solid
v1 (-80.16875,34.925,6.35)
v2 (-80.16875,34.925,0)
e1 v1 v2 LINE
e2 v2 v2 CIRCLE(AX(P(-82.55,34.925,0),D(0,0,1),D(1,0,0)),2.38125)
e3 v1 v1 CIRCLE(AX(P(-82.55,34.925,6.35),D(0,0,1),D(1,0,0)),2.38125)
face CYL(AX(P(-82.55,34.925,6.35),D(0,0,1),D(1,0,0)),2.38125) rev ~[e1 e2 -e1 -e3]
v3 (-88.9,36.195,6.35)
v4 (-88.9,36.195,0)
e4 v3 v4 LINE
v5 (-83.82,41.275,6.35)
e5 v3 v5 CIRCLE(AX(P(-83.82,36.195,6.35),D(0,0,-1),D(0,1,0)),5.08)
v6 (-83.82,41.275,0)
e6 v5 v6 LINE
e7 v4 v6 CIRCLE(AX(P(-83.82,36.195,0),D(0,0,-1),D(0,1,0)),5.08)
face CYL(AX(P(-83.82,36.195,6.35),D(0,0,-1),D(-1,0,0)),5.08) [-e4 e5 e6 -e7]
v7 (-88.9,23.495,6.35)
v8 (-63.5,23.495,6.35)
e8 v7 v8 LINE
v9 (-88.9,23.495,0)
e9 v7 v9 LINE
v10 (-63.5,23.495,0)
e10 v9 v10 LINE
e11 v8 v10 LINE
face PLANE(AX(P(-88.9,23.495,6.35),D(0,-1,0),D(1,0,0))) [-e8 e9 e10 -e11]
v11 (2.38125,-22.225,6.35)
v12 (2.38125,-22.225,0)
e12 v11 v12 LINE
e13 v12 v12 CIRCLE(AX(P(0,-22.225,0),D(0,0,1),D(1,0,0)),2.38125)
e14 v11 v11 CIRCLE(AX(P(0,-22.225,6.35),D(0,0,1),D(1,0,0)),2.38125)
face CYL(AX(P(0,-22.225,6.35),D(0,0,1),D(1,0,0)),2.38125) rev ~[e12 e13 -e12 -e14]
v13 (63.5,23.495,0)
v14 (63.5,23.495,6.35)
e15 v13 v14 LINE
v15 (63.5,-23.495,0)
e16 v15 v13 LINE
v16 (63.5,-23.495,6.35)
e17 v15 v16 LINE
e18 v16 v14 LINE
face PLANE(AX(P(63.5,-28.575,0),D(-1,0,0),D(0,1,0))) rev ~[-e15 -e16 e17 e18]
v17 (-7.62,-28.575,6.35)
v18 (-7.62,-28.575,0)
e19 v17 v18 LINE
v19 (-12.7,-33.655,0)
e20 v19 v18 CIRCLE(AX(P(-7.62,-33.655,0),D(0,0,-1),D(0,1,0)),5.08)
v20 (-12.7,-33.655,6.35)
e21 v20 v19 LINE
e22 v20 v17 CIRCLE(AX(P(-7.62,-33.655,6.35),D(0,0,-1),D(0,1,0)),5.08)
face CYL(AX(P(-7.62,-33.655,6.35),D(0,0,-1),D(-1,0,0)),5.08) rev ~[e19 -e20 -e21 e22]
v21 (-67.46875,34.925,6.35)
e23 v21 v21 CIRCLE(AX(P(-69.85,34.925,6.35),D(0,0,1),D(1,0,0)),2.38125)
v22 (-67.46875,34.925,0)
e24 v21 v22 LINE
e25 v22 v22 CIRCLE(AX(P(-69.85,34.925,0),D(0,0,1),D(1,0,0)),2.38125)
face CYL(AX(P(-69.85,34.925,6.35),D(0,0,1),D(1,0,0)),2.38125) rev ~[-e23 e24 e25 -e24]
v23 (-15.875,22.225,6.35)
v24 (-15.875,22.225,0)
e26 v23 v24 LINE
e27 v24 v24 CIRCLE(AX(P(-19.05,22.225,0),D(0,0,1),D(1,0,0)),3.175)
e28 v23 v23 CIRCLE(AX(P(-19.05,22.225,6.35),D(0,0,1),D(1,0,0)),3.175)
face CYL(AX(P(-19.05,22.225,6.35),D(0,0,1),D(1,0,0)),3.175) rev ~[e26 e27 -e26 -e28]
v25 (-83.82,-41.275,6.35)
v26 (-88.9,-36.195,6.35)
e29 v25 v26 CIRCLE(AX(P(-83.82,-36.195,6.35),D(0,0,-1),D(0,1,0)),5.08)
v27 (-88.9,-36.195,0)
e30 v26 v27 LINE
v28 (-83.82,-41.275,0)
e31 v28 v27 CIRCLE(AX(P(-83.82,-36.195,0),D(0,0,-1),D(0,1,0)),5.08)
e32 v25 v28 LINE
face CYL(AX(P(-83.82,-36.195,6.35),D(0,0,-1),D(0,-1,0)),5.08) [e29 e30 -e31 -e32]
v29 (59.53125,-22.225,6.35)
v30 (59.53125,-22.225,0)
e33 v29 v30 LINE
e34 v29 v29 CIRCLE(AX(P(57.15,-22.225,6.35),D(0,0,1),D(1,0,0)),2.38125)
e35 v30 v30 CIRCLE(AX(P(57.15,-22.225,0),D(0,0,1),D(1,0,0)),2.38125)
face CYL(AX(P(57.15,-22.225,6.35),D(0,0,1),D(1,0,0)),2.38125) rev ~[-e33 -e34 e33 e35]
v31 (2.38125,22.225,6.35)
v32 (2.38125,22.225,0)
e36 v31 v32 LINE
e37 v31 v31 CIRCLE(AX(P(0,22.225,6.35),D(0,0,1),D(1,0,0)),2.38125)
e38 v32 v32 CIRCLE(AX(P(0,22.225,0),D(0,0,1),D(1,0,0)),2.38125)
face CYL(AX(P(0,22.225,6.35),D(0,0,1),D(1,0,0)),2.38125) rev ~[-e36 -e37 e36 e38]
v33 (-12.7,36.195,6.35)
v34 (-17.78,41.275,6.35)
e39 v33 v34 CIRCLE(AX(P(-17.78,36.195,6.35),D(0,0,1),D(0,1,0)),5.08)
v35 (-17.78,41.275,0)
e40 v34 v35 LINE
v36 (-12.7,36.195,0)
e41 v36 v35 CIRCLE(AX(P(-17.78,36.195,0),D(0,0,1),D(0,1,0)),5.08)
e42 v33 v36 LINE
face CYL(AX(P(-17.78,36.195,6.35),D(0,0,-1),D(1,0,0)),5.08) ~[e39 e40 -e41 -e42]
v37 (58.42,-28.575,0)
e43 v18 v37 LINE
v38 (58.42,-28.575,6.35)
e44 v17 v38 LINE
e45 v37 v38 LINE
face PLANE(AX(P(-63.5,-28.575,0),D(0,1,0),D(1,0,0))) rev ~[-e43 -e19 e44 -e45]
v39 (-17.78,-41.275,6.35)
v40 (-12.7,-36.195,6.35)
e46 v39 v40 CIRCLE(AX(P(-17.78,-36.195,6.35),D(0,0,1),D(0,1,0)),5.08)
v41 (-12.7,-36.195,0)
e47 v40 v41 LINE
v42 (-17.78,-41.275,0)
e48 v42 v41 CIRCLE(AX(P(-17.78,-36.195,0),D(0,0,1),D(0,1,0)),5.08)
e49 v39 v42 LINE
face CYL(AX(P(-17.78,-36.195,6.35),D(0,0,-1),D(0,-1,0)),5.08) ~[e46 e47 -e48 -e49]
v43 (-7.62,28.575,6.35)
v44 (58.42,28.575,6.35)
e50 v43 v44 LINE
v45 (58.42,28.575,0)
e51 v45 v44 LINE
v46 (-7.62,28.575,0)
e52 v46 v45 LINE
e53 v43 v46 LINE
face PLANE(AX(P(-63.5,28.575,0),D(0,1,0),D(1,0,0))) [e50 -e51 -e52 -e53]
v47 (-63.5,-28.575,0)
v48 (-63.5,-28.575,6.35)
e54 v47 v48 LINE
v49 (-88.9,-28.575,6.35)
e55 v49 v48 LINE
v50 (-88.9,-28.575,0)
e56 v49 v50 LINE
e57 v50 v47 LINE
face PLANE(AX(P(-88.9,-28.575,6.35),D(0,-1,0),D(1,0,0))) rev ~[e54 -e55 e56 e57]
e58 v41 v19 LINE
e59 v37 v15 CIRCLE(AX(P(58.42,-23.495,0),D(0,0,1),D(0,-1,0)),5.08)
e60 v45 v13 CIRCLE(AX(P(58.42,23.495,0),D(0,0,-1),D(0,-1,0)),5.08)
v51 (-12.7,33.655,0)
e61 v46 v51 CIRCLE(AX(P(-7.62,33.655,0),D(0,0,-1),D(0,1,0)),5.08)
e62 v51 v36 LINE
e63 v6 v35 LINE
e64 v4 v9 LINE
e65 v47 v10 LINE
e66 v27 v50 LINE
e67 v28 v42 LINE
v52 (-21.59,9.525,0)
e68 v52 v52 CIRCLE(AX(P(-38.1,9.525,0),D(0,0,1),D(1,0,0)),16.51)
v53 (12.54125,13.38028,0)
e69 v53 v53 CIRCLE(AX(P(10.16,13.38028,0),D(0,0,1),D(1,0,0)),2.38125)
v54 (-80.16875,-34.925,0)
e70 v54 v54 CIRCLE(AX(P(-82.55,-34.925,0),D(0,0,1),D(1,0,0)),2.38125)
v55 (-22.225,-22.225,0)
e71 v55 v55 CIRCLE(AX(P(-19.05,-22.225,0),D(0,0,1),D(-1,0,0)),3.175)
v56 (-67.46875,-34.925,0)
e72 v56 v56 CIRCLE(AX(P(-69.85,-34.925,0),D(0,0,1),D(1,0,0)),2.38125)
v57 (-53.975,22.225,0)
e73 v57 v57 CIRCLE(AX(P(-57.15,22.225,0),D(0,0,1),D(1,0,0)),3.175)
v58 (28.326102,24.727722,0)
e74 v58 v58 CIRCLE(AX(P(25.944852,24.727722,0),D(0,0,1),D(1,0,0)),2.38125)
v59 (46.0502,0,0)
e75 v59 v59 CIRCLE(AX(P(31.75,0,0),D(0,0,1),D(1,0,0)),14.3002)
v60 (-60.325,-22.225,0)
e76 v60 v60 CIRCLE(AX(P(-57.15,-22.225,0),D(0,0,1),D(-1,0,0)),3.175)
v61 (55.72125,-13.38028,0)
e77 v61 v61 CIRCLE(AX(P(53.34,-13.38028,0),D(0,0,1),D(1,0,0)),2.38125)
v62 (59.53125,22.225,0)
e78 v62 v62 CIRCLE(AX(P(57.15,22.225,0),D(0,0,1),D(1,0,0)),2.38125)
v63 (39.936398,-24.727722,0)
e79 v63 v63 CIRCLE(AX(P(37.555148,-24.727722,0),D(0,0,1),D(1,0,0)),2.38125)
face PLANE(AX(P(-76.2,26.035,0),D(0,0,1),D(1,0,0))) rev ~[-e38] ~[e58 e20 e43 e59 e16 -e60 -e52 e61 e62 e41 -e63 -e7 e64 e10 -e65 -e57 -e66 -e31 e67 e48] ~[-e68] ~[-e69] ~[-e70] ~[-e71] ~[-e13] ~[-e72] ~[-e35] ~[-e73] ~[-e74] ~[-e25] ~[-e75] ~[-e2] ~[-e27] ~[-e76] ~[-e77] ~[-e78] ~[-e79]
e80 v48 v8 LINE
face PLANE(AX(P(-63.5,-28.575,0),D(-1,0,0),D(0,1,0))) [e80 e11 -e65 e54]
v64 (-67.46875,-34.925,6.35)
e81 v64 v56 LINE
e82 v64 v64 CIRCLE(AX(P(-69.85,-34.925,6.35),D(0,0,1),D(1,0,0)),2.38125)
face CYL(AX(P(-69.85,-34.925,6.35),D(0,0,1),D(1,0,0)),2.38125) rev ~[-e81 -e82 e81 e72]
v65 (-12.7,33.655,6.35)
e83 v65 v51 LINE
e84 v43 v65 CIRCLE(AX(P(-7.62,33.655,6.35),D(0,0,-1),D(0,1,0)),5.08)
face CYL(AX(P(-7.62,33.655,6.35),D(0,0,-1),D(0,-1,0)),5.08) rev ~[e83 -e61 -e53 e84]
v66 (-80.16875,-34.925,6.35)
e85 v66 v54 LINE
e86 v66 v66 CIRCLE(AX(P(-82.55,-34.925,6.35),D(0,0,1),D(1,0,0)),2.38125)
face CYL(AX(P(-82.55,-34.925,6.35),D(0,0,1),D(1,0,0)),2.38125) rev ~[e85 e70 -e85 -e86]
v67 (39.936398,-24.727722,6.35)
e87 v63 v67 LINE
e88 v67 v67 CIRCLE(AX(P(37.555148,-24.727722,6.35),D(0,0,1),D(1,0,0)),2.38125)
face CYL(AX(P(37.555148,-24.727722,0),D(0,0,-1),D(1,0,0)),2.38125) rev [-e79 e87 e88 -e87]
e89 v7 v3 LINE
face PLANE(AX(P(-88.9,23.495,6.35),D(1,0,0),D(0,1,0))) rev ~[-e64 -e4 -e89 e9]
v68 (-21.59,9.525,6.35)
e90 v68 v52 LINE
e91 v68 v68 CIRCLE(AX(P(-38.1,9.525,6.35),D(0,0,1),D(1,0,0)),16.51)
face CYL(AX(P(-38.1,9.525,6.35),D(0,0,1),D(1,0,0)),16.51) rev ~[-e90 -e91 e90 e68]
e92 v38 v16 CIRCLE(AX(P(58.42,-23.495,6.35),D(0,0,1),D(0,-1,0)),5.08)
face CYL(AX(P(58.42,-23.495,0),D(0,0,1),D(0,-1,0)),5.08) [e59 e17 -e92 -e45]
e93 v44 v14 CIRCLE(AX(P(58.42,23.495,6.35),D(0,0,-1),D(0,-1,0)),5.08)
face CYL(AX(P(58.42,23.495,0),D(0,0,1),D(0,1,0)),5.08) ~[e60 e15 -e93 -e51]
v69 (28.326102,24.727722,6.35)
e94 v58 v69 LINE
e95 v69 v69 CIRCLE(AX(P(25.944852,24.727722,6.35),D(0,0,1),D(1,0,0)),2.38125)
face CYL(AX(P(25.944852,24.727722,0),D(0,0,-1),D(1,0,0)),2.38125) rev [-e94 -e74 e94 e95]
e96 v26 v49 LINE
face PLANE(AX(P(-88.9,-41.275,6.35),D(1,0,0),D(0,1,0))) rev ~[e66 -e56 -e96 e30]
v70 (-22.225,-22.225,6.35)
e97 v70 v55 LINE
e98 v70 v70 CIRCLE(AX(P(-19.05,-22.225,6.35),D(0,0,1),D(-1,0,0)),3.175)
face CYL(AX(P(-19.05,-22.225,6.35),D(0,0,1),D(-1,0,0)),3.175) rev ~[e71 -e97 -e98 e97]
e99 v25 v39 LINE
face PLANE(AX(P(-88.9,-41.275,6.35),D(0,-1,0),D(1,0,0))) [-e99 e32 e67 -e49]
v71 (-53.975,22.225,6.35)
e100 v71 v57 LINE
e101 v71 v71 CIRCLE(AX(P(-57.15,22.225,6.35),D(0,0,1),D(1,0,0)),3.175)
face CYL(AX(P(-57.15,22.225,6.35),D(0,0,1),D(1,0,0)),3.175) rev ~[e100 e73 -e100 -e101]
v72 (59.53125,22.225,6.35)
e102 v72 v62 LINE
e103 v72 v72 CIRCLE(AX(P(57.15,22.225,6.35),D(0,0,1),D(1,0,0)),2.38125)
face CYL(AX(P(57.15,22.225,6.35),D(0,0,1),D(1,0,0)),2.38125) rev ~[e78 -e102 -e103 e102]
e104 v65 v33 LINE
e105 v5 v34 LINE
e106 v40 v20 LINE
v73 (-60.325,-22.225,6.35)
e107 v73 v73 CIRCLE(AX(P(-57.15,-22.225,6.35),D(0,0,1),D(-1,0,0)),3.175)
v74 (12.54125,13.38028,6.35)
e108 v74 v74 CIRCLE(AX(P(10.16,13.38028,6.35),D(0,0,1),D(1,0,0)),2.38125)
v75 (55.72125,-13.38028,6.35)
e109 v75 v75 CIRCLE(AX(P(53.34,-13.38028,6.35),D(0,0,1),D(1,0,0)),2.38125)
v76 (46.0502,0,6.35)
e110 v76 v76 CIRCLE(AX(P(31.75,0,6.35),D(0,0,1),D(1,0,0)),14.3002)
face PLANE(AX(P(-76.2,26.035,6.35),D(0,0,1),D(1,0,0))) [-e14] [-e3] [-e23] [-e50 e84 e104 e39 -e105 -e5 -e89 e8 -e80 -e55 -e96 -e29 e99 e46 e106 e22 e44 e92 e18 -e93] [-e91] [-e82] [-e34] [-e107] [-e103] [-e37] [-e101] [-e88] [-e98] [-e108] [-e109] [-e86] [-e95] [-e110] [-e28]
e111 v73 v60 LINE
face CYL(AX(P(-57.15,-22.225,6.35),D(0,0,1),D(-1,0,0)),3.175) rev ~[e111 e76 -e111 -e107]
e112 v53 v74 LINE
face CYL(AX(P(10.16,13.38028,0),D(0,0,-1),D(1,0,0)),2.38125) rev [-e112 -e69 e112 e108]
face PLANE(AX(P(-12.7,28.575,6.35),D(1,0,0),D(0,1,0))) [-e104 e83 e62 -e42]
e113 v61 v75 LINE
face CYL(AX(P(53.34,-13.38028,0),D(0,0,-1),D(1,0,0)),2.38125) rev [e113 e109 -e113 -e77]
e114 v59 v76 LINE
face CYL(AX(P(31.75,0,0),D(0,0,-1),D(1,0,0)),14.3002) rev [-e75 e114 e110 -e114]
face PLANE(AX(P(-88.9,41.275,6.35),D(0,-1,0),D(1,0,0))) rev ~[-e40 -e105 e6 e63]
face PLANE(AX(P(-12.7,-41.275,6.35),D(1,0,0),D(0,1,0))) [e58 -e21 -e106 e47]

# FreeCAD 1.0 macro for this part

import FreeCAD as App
import Part
import Sketcher

V = App.Vector
Q = App.Units.Quantity


def edges_at(feature, points):
    """Names of the edges that pass closest to the given points."""
    edges = feature.Shape.Edges
    near = lambda p: min(range(len(edges)), key=lambda i: edges[i].distToShape(Part.Vertex(*p))[0])
    return sorted({f"Edge{near(p) + 1}" for p in points})

doc = App.newDocument("Part")
body = doc.addObject("PartDesign::Body", "Body")

# Sketch on XY plane
sketch1 = doc.addObject("Sketcher::SketchObject", "Sketch")
body.addObject(sketch1)
sketch1.AttachmentSupport = (doc.XY_Plane, [""])
sketch1.MapMode = "FlatFace"
sketch1.addGeometry([
    Part.LineSegment(V(-63.5, 28.6, 0), V(-63.5, -28.6, 0)),  # 0
    Part.LineSegment(V(-63.5, -28.6, 0), V(63.5, -28.6, 0)),  # 1
    Part.LineSegment(V(63.5, -28.6, 0), V(63.5, 28.6, 0)),  # 2
    Part.LineSegment(V(63.5, 28.6, 0), V(-63.5, 28.6, 0)),  # 3
    Part.Circle(V(37.6, -24.7, 0), V(0, 0, 1), 2.4),  # 4
    Part.Circle(V(53.3, -13.4, 0), V(0, 0, 1), 2.4),  # 5
    Part.Circle(V(10.2, 13.4, 0), V(0, 0, 1), 2.4),  # 6
    Part.Circle(V(31.8, 0, 0), V(0, 0, 1), 14.3),  # 7
    Part.Circle(V(25.9, 24.7, 0), V(0, 0, 1), 2.4),  # 8
], False)
sketch1.addConstraint([
    Sketcher.Constraint("Coincident", 0, 2, 1, 1),
    Sketcher.Constraint("Coincident", 1, 2, 2, 1),
    Sketcher.Constraint("Coincident", 2, 2, 3, 1),
    Sketcher.Constraint("Coincident", 3, 2, 0, 1),
    Sketcher.Constraint("Vertical", 0),
    Sketcher.Constraint("Horizontal", 1),
    Sketcher.Constraint("Vertical", 2),
    Sketcher.Constraint("Horizontal", 3),
    Sketcher.Constraint("Equal", 4, 5),
    Sketcher.Constraint("Equal", 5, 6),
    Sketcher.Constraint("Equal", 6, 8),
    Sketcher.Constraint("Symmetric", 0, 2, 2, 2, -1, 1),
    Sketcher.Constraint("PointOnObject", 7, 3, -1),
    Sketcher.Constraint("DistanceX", 1, 1, 1, 2, Q("5 in")),
    Sketcher.Constraint("Diameter", 4, Q("0.1875 in")),
    Sketcher.Constraint("Diameter", 7, Q("1.126 in")),
    Sketcher.Constraint("DistanceY", 0, 2, 0, 1, Q("2.25 in")),
    Sketcher.Constraint("DistanceX", -1, 1, 5, 3, Q("2.1 in")),
    Sketcher.Constraint("DistanceX", -1, 1, 6, 3, Q("0.4 in")),
    Sketcher.Constraint("DistanceX", -1, 1, 7, 3, Q("1.25 in")),
    Sketcher.Constraint("DistanceX", -1, 1, 4, 3, Q("37.555148 mm")),
    Sketcher.Constraint("DistanceY", 5, 3, -1, 1, Q("13.38028 mm")),
    Sketcher.Constraint("DistanceY", -1, 1, 6, 3, Q("13.38028 mm")),
    Sketcher.Constraint("DistanceX", -1, 1, 8, 3, Q("25.944852 mm")),
    Sketcher.Constraint("DistanceY", 4, 3, -1, 1, Q("24.727722 mm")),
    Sketcher.Constraint("DistanceY", -1, 1, 8, 3, Q("24.727722 mm")),
])
pad1 = doc.addObject("PartDesign::Pad", "Pad")
body.addObject(pad1)
pad1.Profile = sketch1
pad1.Length = Q("0.25 in")

# Sketch on XY plane
sketch2 = doc.addObject("Sketcher::SketchObject", "Sketch001")
body.addObject(sketch2)
sketch2.AttachmentSupport = (doc.XY_Plane, [""])
sketch2.MapMode = "FlatFace"
sketch2.AttachmentOffset = App.Placement(V(0, 0, 0.25 * 25.4), App.Rotation())
sketch2.addGeometry([
    Part.Circle(V(57.1, 22.2, 0), V(0, 0, 1), 2.4),
    Part.Circle(V(57.1, -22.2, 0), V(0, 0, 1), 2.4),
    Part.Circle(V(0, 22.2, 0), V(0, 0, 1), 2.4),
    Part.Circle(V(0, -22.2, 0), V(0, 0, 1), 2.4),
], False)
sketch2.addConstraint([
    Sketcher.Constraint("Equal", 0, 1),
    Sketcher.Constraint("Equal", 1, 2),
    Sketcher.Constraint("Equal", 2, 3),
    Sketcher.Constraint("Symmetric", 2, 3, 3, 3, -1, 1),
    Sketcher.Constraint("Symmetric", 0, 3, 1, 3, -1),
    Sketcher.Constraint("PointOnObject", 2, 3, -2),
    Sketcher.Constraint("Horizontal", 0, 3, 2, 3),
    Sketcher.Constraint("Diameter", 0, Q("0.1875 in")),
    Sketcher.Constraint("DistanceX", -1, 1, 0, 3, Q("2.25 in")),
    Sketcher.Constraint("DistanceY", 1, 3, 0, 3, Q("1.75 in")),
])
pocket1 = doc.addObject("PartDesign::Pocket", "Pocket")
body.addObject(pocket1)
pocket1.Profile = sketch2
pocket1.Type = "ThroughAll"
doc.recompute()

fillet = doc.addObject("PartDesign::Fillet", "Fillet")
body.addObject(fillet)
fillet.Base = (pocket1, edges_at(pocket1, [(63.5, -28.575, 3.175), (63.5, 28.575, 3.175)]))
fillet.Radius = Q("0.2 in")

# Sketch on XY plane
sketch3 = doc.addObject("Sketcher::SketchObject", "Sketch002")
body.addObject(sketch3)
sketch3.AttachmentSupport = (doc.XY_Plane, [""])
sketch3.MapMode = "FlatFace"
sketch3.AttachmentOffset = App.Placement(V(0, 0, 0.25 * 25.4), App.Rotation())
sketch3.addGeometry([
    Part.Circle(V(-57.1, 22.2, 0), V(0, 0, 1), 3.2),
    Part.Circle(V(-19.1, 22.2, 0), V(0, 0, 1), 3.2),
    Part.Circle(V(-19.1, -22.2, 0), V(0, 0, 1), 3.2),
    Part.Circle(V(-57.1, -22.2, 0), V(0, 0, 1), 3.2),
], False)
sketch3.addConstraint([
    Sketcher.Constraint("Equal", 0, 1),
    Sketcher.Constraint("Equal", 1, 2),
    Sketcher.Constraint("Equal", 2, 3),
    Sketcher.Constraint("Symmetric", 1, 3, 2, 3, -1),
    Sketcher.Constraint("Symmetric", 0, 3, 3, 3, -1),
    Sketcher.Constraint("Horizontal", 0, 3, 1, 3),
    Sketcher.Constraint("Diameter", 0, Q("0.25 in")),
    Sketcher.Constraint("DistanceX", 0, 3, 1, 3, Q("1.5 in")),
    Sketcher.Constraint("DistanceX", 0, 3, -1, 1, Q("2.25 in")),
    Sketcher.Constraint("DistanceY", 2, 3, 1, 3, Q("1.75 in")),
])
pocket2 = doc.addObject("PartDesign::Pocket", "Pocket001")
body.addObject(pocket2)
pocket2.Profile = sketch3
pocket2.Type = "ThroughAll"

# Sketch on XY plane
sketch4 = doc.addObject("Sketcher::SketchObject", "Sketch003")
body.addObject(sketch4)
sketch4.AttachmentSupport = (doc.XY_Plane, [""])
sketch4.MapMode = "FlatFace"
sketch4.AttachmentOffset = App.Placement(V(0, 0, 0.25 * 25.4), App.Rotation())
sketch4.addGeometry(Part.Circle(V(-38, 10, 0), V(0, 0, 1), 17), False)
sketch4.addConstraint([
    Sketcher.Constraint("Diameter", 0, Q("1.3 in")),
    Sketcher.Constraint("DistanceX", 0, 3, -1, 1, Q("1.5 in")),
    Sketcher.Constraint("DistanceY", -1, 1, 0, 3, Q("0.375 in")),
])
pocket3 = doc.addObject("PartDesign::Pocket", "Pocket002")
body.addObject(pocket3)
pocket3.Profile = sketch4
pocket3.Length = Q("0.3 in")

# Sketch on XY plane
sketch5 = doc.addObject("Sketcher::SketchObject", "Sketch004")
body.addObject(sketch5)
sketch5.AttachmentSupport = (doc.XY_Plane, [""])
sketch5.MapMode = "FlatFace"
sketch5.AttachmentOffset = App.Placement(V(0, 0, 0.25 * 25.4), App.Rotation())
sketch5.addGeometry([
    Part.LineSegment(V(-89, -29, 0), V(-89, -41, 0)),  # 0
    Part.LineSegment(V(-89, -41, 0), V(-13, -41, 0)),  # 1
    Part.LineSegment(V(-13, -41, 0), V(-13, -29, 0)),  # 2
    Part.LineSegment(V(-13, -29, 0), V(-89, -29, 0)),  # 3
    Part.LineSegment(V(-89, 41, 0), V(-89, 29, 0)),  # 4
    Part.LineSegment(V(-89, 29, 0), V(-13, 29, 0)),  # 5
    Part.LineSegment(V(-13, 29, 0), V(-13, 41, 0)),  # 6
    Part.LineSegment(V(-13, 41, 0), V(-89, 41, 0)),  # 7
], False)
sketch5.addConstraint([
    Sketcher.Constraint("Coincident", 0, 2, 1, 1),
    Sketcher.Constraint("Coincident", 1, 2, 2, 1),
    Sketcher.Constraint("Coincident", 2, 2, 3, 1),
    Sketcher.Constraint("Coincident", 3, 2, 0, 1),
    Sketcher.Constraint("Coincident", 4, 2, 5, 1),
    Sketcher.Constraint("Coincident", 5, 2, 6, 1),
    Sketcher.Constraint("Coincident", 6, 2, 7, 1),
    Sketcher.Constraint("Coincident", 7, 2, 4, 1),
    Sketcher.Constraint("Vertical", 0),
    Sketcher.Constraint("Horizontal", 1),
    Sketcher.Constraint("Vertical", 2),
    Sketcher.Constraint("Horizontal", 3),
    Sketcher.Constraint("Vertical", 4),
    Sketcher.Constraint("Horizontal", 5),
    Sketcher.Constraint("Vertical", 6),
    Sketcher.Constraint("Horizontal", 7),
    Sketcher.Constraint("Symmetric", 3, 2, 4, 2, -1),
    Sketcher.Constraint("Symmetric", 1, 2, 6, 2, -1),
    Sketcher.Constraint("DistanceX", 1, 1, 1, 2, Q("3 in")),
    Sketcher.Constraint("DistanceY", 0, 2, 0, 1, Q("0.5 in")),
    Sketcher.Constraint("DistanceX", 0, 2, -1, 1, Q("3.5 in")),
    Sketcher.Constraint("DistanceY", 3, 2, 4, 2, Q("2.25 in")),
])
pad2 = doc.addObject("PartDesign::Pad", "Pad001")
body.addObject(pad2)
pad2.Profile = sketch5
pad2.Length = Q("0.25 in")
pad2.Reversed = True
doc.recompute()

fillet2 = doc.addObject("PartDesign::Fillet", "Fillet001")
body.addObject(fillet2)
fillet2.Base = (pad2, edges_at(pad2, [
    (-12.7, 41.275, 3.175),
    (-12.7, 28.575, 3.175),
    (-12.7, -28.575, 3.175),
    (-12.7, -41.275, 3.175),
]))
fillet2.Radius = Q("0.2 in")

# Sketch on XY plane
sketch6 = doc.addObject("Sketcher::SketchObject", "Sketch005")
body.addObject(sketch6)
sketch6.AttachmentSupport = (doc.XY_Plane, [""])
sketch6.MapMode = "FlatFace"
sketch6.AttachmentOffset = App.Placement(V(0, 0, 0.25 * 25.4), App.Rotation())
sketch6.addGeometry([
    Part.LineSegment(V(-89, 29, 0), V(-89, 23, 0)),
    Part.LineSegment(V(-89, 23, 0), V(-64, 23, 0)),
    Part.LineSegment(V(-64, 23, 0), V(-64, 29, 0)),
    Part.LineSegment(V(-64, 29, 0), V(-89, 29, 0)),
], False)
sketch6.addConstraint([
    Sketcher.Constraint("Coincident", 0, 2, 1, 1),
    Sketcher.Constraint("Coincident", 1, 2, 2, 1),
    Sketcher.Constraint("Coincident", 2, 2, 3, 1),
    Sketcher.Constraint("Coincident", 3, 2, 0, 1),
    Sketcher.Constraint("Vertical", 0),
    Sketcher.Constraint("Horizontal", 1),
    Sketcher.Constraint("Vertical", 2),
    Sketcher.Constraint("Horizontal", 3),
    Sketcher.Constraint("DistanceX", 1, 1, 1, 2, Q("1 in")),
    Sketcher.Constraint("DistanceY", 0, 2, 0, 1, Q("0.2 in")),
    Sketcher.Constraint("DistanceX", 0, 2, -1, 1, Q("3.5 in")),
    Sketcher.Constraint("DistanceY", -1, 1, 0, 2, Q("0.925 in")),
])
pad3 = doc.addObject("PartDesign::Pad", "Pad002")
body.addObject(pad3)
pad3.Profile = sketch6
pad3.Length = Q("0.25 in")
pad3.Reversed = True
doc.recompute()

fillet3 = doc.addObject("PartDesign::Fillet", "Fillet002")
body.addObject(fillet3)
fillet3.Base = (pad3, edges_at(pad3, [(-88.9, 41.275, 3.175), (-88.9, -41.275, 3.175)]))
fillet3.Radius = Q("0.2 in")

# Sketch on XY plane
sketch7 = doc.addObject("Sketcher::SketchObject", "Sketch006")
body.addObject(sketch7)
sketch7.AttachmentSupport = (doc.XY_Plane, [""])
sketch7.MapMode = "FlatFace"
sketch7.AttachmentOffset = App.Placement(V(0, 0, 0.25 * 25.4), App.Rotation())
sketch7.addGeometry([
    Part.Circle(V(-82.5, 34.9, 0), V(0, 0, 1), 2.4),
    Part.Circle(V(-82.5, -34.9, 0), V(0, 0, 1), 2.4),
    Part.Circle(V(-69.8, 34.9, 0), V(0, 0, 1), 2.4),
    Part.Circle(V(-69.8, -34.9, 0), V(0, 0, 1), 2.4),
], False)
sketch7.addConstraint([
    Sketcher.Constraint("Equal", 0, 1),
    Sketcher.Constraint("Equal", 1, 2),
    Sketcher.Constraint("Equal", 2, 3),
    Sketcher.Constraint("Symmetric", 0, 3, 1, 3, -1),
    Sketcher.Constraint("Symmetric", 2, 3, 3, 3, -1),
    Sketcher.Constraint("Horizontal", 0, 3, 2, 3),
    Sketcher.Constraint("Diameter", 0, Q("0.1875 in")),
    Sketcher.Constraint("DistanceX", 0, 3, 2, 3, Q("0.5 in")),
    Sketcher.Constraint("DistanceX", 0, 3, -1, 1, Q("3.25 in")),
    Sketcher.Constraint("DistanceY", 1, 3, 0, 3, Q("2.75 in")),
])
pocket4 = doc.addObject("PartDesign::Pocket", "Pocket003")
body.addObject(pocket4)
pocket4.Profile = sketch7
pocket4.Length = Q("0.25 in")

doc.recompute()
